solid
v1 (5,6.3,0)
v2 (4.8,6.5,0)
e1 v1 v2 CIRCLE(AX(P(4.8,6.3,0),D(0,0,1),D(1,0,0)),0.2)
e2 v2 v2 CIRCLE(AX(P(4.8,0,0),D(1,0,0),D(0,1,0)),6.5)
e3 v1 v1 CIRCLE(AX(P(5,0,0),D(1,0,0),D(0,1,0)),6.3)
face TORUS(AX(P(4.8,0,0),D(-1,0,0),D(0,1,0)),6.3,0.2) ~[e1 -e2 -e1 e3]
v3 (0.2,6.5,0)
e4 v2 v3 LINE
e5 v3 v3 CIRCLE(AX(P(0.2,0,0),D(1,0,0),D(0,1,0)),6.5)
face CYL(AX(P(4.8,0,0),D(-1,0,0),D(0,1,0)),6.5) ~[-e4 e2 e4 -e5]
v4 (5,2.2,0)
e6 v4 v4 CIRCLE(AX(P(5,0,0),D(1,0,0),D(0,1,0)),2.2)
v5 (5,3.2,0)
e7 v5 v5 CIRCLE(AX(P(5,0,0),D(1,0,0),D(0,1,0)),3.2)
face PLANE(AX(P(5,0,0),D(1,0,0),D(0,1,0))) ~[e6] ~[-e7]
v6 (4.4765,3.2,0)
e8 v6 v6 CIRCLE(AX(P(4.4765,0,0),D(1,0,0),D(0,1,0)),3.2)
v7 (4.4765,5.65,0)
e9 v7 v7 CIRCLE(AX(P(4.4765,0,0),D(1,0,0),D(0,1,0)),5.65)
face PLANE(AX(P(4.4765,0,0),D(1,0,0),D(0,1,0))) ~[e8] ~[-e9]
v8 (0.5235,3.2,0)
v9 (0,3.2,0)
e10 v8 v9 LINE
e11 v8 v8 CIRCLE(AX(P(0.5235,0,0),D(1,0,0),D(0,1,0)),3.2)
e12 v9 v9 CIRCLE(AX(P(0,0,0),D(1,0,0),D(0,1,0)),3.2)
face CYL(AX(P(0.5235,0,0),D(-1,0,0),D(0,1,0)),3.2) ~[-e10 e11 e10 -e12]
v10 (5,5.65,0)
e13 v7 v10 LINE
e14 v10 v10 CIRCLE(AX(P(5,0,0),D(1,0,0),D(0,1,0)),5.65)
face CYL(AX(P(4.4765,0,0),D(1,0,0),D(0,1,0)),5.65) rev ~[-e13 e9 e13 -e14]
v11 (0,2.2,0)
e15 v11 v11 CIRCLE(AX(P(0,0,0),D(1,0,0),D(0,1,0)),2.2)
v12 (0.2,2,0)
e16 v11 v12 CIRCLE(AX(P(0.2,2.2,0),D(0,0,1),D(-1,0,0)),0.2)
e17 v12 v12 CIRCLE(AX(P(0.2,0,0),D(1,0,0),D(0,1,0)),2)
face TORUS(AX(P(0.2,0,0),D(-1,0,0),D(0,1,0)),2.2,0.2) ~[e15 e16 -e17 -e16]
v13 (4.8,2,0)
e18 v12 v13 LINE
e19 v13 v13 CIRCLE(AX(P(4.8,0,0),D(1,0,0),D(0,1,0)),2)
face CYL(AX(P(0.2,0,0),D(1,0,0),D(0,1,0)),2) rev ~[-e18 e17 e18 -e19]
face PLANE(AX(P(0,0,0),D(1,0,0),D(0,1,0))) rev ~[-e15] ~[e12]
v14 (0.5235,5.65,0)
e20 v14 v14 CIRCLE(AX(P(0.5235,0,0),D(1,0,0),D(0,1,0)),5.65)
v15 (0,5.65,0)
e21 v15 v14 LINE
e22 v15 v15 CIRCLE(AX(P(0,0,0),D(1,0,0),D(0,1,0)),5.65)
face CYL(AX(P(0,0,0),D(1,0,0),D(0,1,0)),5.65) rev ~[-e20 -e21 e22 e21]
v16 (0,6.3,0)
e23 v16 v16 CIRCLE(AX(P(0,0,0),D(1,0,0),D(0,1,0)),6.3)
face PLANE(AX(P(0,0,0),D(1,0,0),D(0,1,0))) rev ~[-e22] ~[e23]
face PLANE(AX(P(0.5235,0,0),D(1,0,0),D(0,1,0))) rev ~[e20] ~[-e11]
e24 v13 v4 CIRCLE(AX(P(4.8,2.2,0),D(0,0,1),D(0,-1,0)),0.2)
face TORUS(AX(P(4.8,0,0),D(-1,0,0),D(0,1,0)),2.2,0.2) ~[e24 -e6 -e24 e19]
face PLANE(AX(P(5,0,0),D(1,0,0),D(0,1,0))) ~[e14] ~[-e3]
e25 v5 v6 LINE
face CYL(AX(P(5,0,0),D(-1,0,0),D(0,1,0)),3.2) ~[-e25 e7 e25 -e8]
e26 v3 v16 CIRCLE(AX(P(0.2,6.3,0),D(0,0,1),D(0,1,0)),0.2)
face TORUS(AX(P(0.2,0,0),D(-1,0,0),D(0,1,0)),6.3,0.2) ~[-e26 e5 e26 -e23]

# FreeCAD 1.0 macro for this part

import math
import FreeCAD as App
import Part
import Sketcher
Q = App.Units.Quantity

doc = App.newDocument("Part")
params = doc.addObject("Spreadsheet::Sheet", "Params")
for row, (alias, value) in enumerate([
    ("sketch1_radius", "0.2 mm"),
    ("sketch1_height", "1 mm"),
    ("sketch1_width", "4.6 mm"),
    ("sketch1_height2", "2.45 mm"),
    ("sketch1_height3", "0.65 mm"),
    ("revolution_angle", "360 deg"),
], start=1):
    params.set(f"A{row}", alias)
    params.set(f"B{row}", "=" + value)
    params.setAlias(f"B{row}", alias)

body = doc.addObject("PartDesign::Body", "Body")

# Sketch on XY plane
sketch1 = body.newObject("Sketcher::SketchObject", "Sketch")
sketch1.AttachmentSupport = (doc.getObject("XY_Plane"), [""])
sketch1.MapMode = "FlatFace"
sketch1.addGeometry([
    Part.LineSegment(App.Vector(0, 3.2, 0), App.Vector(0, 2.2, 0)),  # 0
    Part.ArcOfCircle(Part.Circle(App.Vector(0.2, 2.2, 0), App.Vector(0, 0, 1), 0.2), math.radians(180), math.radians(270)),  # 1
    Part.LineSegment(App.Vector(0.2, 2, 0), App.Vector(4.8, 2, 0)),  # 2
    Part.ArcOfCircle(Part.Circle(App.Vector(4.8, 2.2, 0), App.Vector(0, 0, 1), 0.2), math.radians(-90), math.radians(0)),  # 3
    Part.LineSegment(App.Vector(5, 2.2, 0), App.Vector(5, 3.2, 0)),  # 4
    Part.LineSegment(App.Vector(5, 3.2, 0), App.Vector(4.48, 3.2, 0)),  # 5
    Part.LineSegment(App.Vector(4.48, 3.2, 0), App.Vector(4.48, 5.65, 0)),  # 6
    Part.LineSegment(App.Vector(4.48, 5.65, 0), App.Vector(5, 5.65, 0)),  # 7
    Part.LineSegment(App.Vector(5, 5.65, 0), App.Vector(5, 6.3, 0)),  # 8
    Part.ArcOfCircle(Part.Circle(App.Vector(4.8, 6.3, 0), App.Vector(0, 0, 1), 0.2), math.radians(0), math.radians(90)),  # 9
    Part.LineSegment(App.Vector(4.8, 6.5, 0), App.Vector(0.2, 6.5, 0)),  # 10
    Part.ArcOfCircle(Part.Circle(App.Vector(0.2, 6.3, 0), App.Vector(0, 0, 1), 0.2), math.radians(90), math.radians(180)),  # 11
    Part.LineSegment(App.Vector(0, 6.3, 0), App.Vector(0, 5.65, 0)),  # 12
    Part.LineSegment(App.Vector(0, 5.65, 0), App.Vector(0.52, 5.65, 0)),  # 13
    Part.LineSegment(App.Vector(0.52, 5.65, 0), App.Vector(0.52, 3.2, 0)),  # 14
    Part.LineSegment(App.Vector(0.52, 3.2, 0), App.Vector(0, 3.2, 0)),  # 15
], False)
sketch1.addConstraint([
    Sketcher.Constraint("Tangent", 0, 2, 1, 1),
    Sketcher.Constraint("Tangent", 1, 2, 2, 1),
    Sketcher.Constraint("Tangent", 2, 2, 3, 1),
    Sketcher.Constraint("Tangent", 3, 2, 4, 1),
    Sketcher.Constraint("Coincident", 4, 2, 5, 1),
    Sketcher.Constraint("Coincident", 5, 2, 6, 1),
    Sketcher.Constraint("Coincident", 6, 2, 7, 1),
    Sketcher.Constraint("Coincident", 7, 2, 8, 1),
    Sketcher.Constraint("Tangent", 8, 2, 9, 1),
    Sketcher.Constraint("Tangent", 9, 2, 10, 1),
    Sketcher.Constraint("Tangent", 10, 2, 11, 1),
    Sketcher.Constraint("Tangent", 11, 2, 12, 1),
    Sketcher.Constraint("Coincident", 12, 2, 13, 1),
    Sketcher.Constraint("Coincident", 13, 2, 14, 1),
    Sketcher.Constraint("Coincident", 14, 2, 15, 1),
    Sketcher.Constraint("Coincident", 15, 2, 0, 1),
    Sketcher.Constraint("Vertical", 0),
    Sketcher.Constraint("Horizontal", 2),
    Sketcher.Constraint("Vertical", 4),
    Sketcher.Constraint("Horizontal", 5),
    Sketcher.Constraint("Vertical", 6),
    Sketcher.Constraint("Horizontal", 7),
    Sketcher.Constraint("Vertical", 8),
    Sketcher.Constraint("Horizontal", 10),
    Sketcher.Constraint("Vertical", 12),
    Sketcher.Constraint("Horizontal", 13),
    Sketcher.Constraint("Vertical", 14),
    Sketcher.Constraint("Horizontal", 15),
    Sketcher.Constraint("Equal", 1, 3),
    Sketcher.Constraint("Equal", 3, 9),
    Sketcher.Constraint("Equal", 9, 11),
    Sketcher.Constraint("PointOnObject", 0, 2, -2),
    Sketcher.Constraint("PointOnObject", 11, 2, -2),
    Sketcher.Constraint("Horizontal", 7, 2, 12, 2),
    Sketcher.Constraint("Horizontal", 5, 2, 14, 2),
    Sketcher.Constraint("Vertical", 3, 3, 9, 3),
    Sketcher.Constraint("Equal", 7, 13),
    Sketcher.Constraint("Radius", 1, Q("0.2 mm")),
    Sketcher.Constraint("DistanceY", 0, 2, 0, 1, Q("1 mm")),
    Sketcher.Constraint("DistanceX", 2, 1, 2, 2, Q("4.6 mm")),
    Sketcher.Constraint("DistanceY", -1, 1, 1, 2, Q("2 mm")),
    Sketcher.Constraint("DistanceY", 6, 1, 6, 2, Q("2.45 mm")),
    Sketcher.Constraint("DistanceY", 8, 1, 8, 2, Q("0.65 mm")),
    Sketcher.Constraint("DistanceX", 5, 2, 5, 1, Q("0.5235 mm")),
])
sketch1.setExpression("Constraints[37]", "Params.sketch1_radius")
sketch1.setExpression("Constraints[38]", "Params.sketch1_height")
sketch1.setExpression("Constraints[39]", "Params.sketch1_width")
sketch1.setExpression("Constraints[41]", "Params.sketch1_height2")
sketch1.setExpression("Constraints[42]", "Params.sketch1_height3")
revolution = body.newObject("PartDesign::Revolution", "Revolution")
revolution.Profile = sketch1
revolution.ReferenceAxis = (sketch1, ["H_Axis"])
revolution.setExpression("Angle", "Params.revolution_angle")

doc.recompute()
